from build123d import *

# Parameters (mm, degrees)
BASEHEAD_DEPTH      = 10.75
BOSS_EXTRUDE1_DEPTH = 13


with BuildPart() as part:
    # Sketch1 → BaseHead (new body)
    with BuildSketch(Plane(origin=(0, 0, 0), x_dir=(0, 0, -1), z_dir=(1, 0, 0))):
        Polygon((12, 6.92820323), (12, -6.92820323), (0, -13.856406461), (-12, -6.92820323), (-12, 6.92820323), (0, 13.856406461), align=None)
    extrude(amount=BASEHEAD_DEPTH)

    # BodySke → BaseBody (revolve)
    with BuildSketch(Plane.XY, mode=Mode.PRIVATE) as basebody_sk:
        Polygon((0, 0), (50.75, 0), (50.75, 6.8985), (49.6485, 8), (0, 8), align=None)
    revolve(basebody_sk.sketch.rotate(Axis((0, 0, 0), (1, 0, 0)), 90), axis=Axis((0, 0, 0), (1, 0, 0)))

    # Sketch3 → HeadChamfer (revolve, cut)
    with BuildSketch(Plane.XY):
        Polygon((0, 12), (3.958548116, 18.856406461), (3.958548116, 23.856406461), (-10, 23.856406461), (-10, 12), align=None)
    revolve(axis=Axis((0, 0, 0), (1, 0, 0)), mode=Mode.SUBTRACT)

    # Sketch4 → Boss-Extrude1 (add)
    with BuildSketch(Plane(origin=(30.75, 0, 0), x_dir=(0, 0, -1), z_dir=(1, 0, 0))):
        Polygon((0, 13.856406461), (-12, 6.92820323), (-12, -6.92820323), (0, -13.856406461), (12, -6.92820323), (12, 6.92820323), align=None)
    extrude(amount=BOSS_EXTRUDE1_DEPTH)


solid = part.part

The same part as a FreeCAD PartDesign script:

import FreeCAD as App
import Part
import Sketcher
from FreeCAD import Vector
Q = App.Units.Quantity


def add_polygon(sketch, points):
    """Adds a closed chain of lines whose ends are joined by coincident constraints."""
    first, n = sketch.GeometryCount, len(points)
    for a, b in zip(points, points[1:] + points[:1]):
        sketch.addGeometry(Part.LineSegment(App.Vector(*a, 0), App.Vector(*b, 0)), False)
    for i in range(n):
        sketch.addConstraint(Sketcher.Constraint("Coincident", first + i, 2, first + (i + 1) % n, 1))

doc = App.newDocument("Part")
body = doc.addObject("PartDesign::Body", "Body")

# Sketch on YZ plane
sketch1 = body.newObject("Sketcher::SketchObject", "Sketch")
sketch1.AttachmentSupport = (doc.getObject("YZ_Plane"), [""])
sketch1.MapMode = "FlatFace"
add_polygon(sketch1, [(-7, -12), (7, -12), (14, 0), (7, 12), (-7, 12), (-14, 0)])  # lines 0-5
sketch1.addConstraint([
    Sketcher.Constraint("Horizontal", 0),
    Sketcher.Constraint("Horizontal", 3),
    Sketcher.Constraint("Symmetric", 0, 2, 3, 2, -1, 1),
    Sketcher.Constraint("Symmetric", 1, 2, 4, 2, -1, 1),
    Sketcher.Constraint("PointOnObject", 1, 2, -1),
    Sketcher.Constraint("Parallel", 2, 5),
    Sketcher.Constraint("Vertical", 0, 2, 2, 2),
    Sketcher.Constraint("Angle", 1, Q("60 deg")),
    Sketcher.Constraint("DistanceY", 0, 2, -1, 1, Q("12 mm")),
    Sketcher.Constraint("DistanceX", 0, 1, 0, 2, Q("13.856406 mm")),
])
pad1 = body.newObject("PartDesign::Pad", "Pad")
pad1.Profile = sketch1
pad1.Length = 10.75

# Sketch on XY plane
sketch2 = body.newObject("Sketcher::SketchObject", "Sketch001")
sketch2.AttachmentSupport = (doc.getObject("XY_Plane"), [""])
sketch2.MapMode = "FlatFace"
add_polygon(sketch2, [(0, 0), (50.8, 0), (50.8, 6.9), (49.6, 8), (0, 8)])  # lines 0-4
sketch2.addConstraint([
    Sketcher.Constraint("Horizontal", 0),
    Sketcher.Constraint("Vertical", 1),
    Sketcher.Constraint("Horizontal", 3),
    Sketcher.Constraint("Vertical", 4),
    Sketcher.Constraint("Coincident", 4, 2, -1, 1),
    Sketcher.Constraint("DistanceY", 4, 2, 4, 1, Q("8 mm")),
    Sketcher.Constraint("Angle", 2, Q("135 deg")),
    Sketcher.Constraint("DistanceX", 0, 1, 0, 2, Q("50.75 mm")),
    Sketcher.Constraint("DistanceX", 3, 2, 3, 1, Q("49.6485 mm")),
])
revolution = body.newObject("PartDesign::Revolution", "Revolution")
revolution.Profile = sketch2
revolution.ReferenceAxis = (sketch2, ["H_Axis"])
revolution.Angle = 360

# Sketch on XY plane
sketch3 = body.newObject("Sketcher::SketchObject", "Sketch002")
sketch3.AttachmentSupport = (doc.getObject("XY_Plane"), [""])
sketch3.MapMode = "FlatFace"
add_polygon(sketch3, [(0, 12), (4, 19), (4, 24), (-10, 24), (-10, 12)])  # lines 0-4
sketch3.addConstraint([
    Sketcher.Constraint("Vertical", 1),
    Sketcher.Constraint("Horizontal", 2),
    Sketcher.Constraint("Vertical", 3),
    Sketcher.Constraint("Horizontal", 4),
    Sketcher.Constraint("PointOnObject", 4, 2, -2),
    Sketcher.Constraint("DistanceX", 4, 1, 4, 2, Q("10 mm")),
    Sketcher.Constraint("DistanceY", 1, 1, 1, 2, Q("5 mm")),
    Sketcher.Constraint("Angle", 0, Q("60 deg")),
    Sketcher.Constraint("DistanceY", -1, 1, 3, 2, Q("12 mm")),
    Sketcher.Constraint("DistanceX", 2, 2, 2, 1, Q("13.958548 mm")),
])
groove = body.newObject("PartDesign::Groove", "Groove")
groove.Profile = sketch3
groove.ReferenceAxis = (sketch3, ["H_Axis"])
groove.Angle = 360

# Sketch on YZ plane
sketch4 = body.newObject("Sketcher::SketchObject", "Sketch003")
sketch4.AttachmentSupport = (doc.getObject("YZ_Plane"), [""])
sketch4.MapMode = "FlatFace"
sketch4.AttachmentOffset = App.Placement(Vector(0, 0, 30.75), App.Rotation())
add_polygon(sketch4, [(14, 0), (7, 12), (-7, 12), (-14, 0), (-7, -12), (7, -12)])  # lines 0-5
sketch4.addConstraint([
    Sketcher.Constraint("Horizontal", 1),
    Sketcher.Constraint("Horizontal", 4),
    Sketcher.Constraint("Symmetric", 0, 2, 3, 2, -1, 1),
    Sketcher.Constraint("Symmetric", 2, 2, 5, 2, -1, 1),
    Sketcher.Constraint("PointOnObject", 2, 2, -1),
    Sketcher.Constraint("Parallel", 2, 5),
    Sketcher.Constraint("Vertical", 1, 2, 3, 2),
    Sketcher.Constraint("Angle", 0, Q("120 deg")),
    Sketcher.Constraint("DistanceY", -1, 1, 0, 2, Q("12 mm")),
    Sketcher.Constraint("DistanceX", 1, 2, 1, 1, Q("13.856406 mm")),
])
pad2 = body.newObject("PartDesign::Pad", "Pad001")
pad2.Profile = sketch4
pad2.Length = 13

doc.recompute()
